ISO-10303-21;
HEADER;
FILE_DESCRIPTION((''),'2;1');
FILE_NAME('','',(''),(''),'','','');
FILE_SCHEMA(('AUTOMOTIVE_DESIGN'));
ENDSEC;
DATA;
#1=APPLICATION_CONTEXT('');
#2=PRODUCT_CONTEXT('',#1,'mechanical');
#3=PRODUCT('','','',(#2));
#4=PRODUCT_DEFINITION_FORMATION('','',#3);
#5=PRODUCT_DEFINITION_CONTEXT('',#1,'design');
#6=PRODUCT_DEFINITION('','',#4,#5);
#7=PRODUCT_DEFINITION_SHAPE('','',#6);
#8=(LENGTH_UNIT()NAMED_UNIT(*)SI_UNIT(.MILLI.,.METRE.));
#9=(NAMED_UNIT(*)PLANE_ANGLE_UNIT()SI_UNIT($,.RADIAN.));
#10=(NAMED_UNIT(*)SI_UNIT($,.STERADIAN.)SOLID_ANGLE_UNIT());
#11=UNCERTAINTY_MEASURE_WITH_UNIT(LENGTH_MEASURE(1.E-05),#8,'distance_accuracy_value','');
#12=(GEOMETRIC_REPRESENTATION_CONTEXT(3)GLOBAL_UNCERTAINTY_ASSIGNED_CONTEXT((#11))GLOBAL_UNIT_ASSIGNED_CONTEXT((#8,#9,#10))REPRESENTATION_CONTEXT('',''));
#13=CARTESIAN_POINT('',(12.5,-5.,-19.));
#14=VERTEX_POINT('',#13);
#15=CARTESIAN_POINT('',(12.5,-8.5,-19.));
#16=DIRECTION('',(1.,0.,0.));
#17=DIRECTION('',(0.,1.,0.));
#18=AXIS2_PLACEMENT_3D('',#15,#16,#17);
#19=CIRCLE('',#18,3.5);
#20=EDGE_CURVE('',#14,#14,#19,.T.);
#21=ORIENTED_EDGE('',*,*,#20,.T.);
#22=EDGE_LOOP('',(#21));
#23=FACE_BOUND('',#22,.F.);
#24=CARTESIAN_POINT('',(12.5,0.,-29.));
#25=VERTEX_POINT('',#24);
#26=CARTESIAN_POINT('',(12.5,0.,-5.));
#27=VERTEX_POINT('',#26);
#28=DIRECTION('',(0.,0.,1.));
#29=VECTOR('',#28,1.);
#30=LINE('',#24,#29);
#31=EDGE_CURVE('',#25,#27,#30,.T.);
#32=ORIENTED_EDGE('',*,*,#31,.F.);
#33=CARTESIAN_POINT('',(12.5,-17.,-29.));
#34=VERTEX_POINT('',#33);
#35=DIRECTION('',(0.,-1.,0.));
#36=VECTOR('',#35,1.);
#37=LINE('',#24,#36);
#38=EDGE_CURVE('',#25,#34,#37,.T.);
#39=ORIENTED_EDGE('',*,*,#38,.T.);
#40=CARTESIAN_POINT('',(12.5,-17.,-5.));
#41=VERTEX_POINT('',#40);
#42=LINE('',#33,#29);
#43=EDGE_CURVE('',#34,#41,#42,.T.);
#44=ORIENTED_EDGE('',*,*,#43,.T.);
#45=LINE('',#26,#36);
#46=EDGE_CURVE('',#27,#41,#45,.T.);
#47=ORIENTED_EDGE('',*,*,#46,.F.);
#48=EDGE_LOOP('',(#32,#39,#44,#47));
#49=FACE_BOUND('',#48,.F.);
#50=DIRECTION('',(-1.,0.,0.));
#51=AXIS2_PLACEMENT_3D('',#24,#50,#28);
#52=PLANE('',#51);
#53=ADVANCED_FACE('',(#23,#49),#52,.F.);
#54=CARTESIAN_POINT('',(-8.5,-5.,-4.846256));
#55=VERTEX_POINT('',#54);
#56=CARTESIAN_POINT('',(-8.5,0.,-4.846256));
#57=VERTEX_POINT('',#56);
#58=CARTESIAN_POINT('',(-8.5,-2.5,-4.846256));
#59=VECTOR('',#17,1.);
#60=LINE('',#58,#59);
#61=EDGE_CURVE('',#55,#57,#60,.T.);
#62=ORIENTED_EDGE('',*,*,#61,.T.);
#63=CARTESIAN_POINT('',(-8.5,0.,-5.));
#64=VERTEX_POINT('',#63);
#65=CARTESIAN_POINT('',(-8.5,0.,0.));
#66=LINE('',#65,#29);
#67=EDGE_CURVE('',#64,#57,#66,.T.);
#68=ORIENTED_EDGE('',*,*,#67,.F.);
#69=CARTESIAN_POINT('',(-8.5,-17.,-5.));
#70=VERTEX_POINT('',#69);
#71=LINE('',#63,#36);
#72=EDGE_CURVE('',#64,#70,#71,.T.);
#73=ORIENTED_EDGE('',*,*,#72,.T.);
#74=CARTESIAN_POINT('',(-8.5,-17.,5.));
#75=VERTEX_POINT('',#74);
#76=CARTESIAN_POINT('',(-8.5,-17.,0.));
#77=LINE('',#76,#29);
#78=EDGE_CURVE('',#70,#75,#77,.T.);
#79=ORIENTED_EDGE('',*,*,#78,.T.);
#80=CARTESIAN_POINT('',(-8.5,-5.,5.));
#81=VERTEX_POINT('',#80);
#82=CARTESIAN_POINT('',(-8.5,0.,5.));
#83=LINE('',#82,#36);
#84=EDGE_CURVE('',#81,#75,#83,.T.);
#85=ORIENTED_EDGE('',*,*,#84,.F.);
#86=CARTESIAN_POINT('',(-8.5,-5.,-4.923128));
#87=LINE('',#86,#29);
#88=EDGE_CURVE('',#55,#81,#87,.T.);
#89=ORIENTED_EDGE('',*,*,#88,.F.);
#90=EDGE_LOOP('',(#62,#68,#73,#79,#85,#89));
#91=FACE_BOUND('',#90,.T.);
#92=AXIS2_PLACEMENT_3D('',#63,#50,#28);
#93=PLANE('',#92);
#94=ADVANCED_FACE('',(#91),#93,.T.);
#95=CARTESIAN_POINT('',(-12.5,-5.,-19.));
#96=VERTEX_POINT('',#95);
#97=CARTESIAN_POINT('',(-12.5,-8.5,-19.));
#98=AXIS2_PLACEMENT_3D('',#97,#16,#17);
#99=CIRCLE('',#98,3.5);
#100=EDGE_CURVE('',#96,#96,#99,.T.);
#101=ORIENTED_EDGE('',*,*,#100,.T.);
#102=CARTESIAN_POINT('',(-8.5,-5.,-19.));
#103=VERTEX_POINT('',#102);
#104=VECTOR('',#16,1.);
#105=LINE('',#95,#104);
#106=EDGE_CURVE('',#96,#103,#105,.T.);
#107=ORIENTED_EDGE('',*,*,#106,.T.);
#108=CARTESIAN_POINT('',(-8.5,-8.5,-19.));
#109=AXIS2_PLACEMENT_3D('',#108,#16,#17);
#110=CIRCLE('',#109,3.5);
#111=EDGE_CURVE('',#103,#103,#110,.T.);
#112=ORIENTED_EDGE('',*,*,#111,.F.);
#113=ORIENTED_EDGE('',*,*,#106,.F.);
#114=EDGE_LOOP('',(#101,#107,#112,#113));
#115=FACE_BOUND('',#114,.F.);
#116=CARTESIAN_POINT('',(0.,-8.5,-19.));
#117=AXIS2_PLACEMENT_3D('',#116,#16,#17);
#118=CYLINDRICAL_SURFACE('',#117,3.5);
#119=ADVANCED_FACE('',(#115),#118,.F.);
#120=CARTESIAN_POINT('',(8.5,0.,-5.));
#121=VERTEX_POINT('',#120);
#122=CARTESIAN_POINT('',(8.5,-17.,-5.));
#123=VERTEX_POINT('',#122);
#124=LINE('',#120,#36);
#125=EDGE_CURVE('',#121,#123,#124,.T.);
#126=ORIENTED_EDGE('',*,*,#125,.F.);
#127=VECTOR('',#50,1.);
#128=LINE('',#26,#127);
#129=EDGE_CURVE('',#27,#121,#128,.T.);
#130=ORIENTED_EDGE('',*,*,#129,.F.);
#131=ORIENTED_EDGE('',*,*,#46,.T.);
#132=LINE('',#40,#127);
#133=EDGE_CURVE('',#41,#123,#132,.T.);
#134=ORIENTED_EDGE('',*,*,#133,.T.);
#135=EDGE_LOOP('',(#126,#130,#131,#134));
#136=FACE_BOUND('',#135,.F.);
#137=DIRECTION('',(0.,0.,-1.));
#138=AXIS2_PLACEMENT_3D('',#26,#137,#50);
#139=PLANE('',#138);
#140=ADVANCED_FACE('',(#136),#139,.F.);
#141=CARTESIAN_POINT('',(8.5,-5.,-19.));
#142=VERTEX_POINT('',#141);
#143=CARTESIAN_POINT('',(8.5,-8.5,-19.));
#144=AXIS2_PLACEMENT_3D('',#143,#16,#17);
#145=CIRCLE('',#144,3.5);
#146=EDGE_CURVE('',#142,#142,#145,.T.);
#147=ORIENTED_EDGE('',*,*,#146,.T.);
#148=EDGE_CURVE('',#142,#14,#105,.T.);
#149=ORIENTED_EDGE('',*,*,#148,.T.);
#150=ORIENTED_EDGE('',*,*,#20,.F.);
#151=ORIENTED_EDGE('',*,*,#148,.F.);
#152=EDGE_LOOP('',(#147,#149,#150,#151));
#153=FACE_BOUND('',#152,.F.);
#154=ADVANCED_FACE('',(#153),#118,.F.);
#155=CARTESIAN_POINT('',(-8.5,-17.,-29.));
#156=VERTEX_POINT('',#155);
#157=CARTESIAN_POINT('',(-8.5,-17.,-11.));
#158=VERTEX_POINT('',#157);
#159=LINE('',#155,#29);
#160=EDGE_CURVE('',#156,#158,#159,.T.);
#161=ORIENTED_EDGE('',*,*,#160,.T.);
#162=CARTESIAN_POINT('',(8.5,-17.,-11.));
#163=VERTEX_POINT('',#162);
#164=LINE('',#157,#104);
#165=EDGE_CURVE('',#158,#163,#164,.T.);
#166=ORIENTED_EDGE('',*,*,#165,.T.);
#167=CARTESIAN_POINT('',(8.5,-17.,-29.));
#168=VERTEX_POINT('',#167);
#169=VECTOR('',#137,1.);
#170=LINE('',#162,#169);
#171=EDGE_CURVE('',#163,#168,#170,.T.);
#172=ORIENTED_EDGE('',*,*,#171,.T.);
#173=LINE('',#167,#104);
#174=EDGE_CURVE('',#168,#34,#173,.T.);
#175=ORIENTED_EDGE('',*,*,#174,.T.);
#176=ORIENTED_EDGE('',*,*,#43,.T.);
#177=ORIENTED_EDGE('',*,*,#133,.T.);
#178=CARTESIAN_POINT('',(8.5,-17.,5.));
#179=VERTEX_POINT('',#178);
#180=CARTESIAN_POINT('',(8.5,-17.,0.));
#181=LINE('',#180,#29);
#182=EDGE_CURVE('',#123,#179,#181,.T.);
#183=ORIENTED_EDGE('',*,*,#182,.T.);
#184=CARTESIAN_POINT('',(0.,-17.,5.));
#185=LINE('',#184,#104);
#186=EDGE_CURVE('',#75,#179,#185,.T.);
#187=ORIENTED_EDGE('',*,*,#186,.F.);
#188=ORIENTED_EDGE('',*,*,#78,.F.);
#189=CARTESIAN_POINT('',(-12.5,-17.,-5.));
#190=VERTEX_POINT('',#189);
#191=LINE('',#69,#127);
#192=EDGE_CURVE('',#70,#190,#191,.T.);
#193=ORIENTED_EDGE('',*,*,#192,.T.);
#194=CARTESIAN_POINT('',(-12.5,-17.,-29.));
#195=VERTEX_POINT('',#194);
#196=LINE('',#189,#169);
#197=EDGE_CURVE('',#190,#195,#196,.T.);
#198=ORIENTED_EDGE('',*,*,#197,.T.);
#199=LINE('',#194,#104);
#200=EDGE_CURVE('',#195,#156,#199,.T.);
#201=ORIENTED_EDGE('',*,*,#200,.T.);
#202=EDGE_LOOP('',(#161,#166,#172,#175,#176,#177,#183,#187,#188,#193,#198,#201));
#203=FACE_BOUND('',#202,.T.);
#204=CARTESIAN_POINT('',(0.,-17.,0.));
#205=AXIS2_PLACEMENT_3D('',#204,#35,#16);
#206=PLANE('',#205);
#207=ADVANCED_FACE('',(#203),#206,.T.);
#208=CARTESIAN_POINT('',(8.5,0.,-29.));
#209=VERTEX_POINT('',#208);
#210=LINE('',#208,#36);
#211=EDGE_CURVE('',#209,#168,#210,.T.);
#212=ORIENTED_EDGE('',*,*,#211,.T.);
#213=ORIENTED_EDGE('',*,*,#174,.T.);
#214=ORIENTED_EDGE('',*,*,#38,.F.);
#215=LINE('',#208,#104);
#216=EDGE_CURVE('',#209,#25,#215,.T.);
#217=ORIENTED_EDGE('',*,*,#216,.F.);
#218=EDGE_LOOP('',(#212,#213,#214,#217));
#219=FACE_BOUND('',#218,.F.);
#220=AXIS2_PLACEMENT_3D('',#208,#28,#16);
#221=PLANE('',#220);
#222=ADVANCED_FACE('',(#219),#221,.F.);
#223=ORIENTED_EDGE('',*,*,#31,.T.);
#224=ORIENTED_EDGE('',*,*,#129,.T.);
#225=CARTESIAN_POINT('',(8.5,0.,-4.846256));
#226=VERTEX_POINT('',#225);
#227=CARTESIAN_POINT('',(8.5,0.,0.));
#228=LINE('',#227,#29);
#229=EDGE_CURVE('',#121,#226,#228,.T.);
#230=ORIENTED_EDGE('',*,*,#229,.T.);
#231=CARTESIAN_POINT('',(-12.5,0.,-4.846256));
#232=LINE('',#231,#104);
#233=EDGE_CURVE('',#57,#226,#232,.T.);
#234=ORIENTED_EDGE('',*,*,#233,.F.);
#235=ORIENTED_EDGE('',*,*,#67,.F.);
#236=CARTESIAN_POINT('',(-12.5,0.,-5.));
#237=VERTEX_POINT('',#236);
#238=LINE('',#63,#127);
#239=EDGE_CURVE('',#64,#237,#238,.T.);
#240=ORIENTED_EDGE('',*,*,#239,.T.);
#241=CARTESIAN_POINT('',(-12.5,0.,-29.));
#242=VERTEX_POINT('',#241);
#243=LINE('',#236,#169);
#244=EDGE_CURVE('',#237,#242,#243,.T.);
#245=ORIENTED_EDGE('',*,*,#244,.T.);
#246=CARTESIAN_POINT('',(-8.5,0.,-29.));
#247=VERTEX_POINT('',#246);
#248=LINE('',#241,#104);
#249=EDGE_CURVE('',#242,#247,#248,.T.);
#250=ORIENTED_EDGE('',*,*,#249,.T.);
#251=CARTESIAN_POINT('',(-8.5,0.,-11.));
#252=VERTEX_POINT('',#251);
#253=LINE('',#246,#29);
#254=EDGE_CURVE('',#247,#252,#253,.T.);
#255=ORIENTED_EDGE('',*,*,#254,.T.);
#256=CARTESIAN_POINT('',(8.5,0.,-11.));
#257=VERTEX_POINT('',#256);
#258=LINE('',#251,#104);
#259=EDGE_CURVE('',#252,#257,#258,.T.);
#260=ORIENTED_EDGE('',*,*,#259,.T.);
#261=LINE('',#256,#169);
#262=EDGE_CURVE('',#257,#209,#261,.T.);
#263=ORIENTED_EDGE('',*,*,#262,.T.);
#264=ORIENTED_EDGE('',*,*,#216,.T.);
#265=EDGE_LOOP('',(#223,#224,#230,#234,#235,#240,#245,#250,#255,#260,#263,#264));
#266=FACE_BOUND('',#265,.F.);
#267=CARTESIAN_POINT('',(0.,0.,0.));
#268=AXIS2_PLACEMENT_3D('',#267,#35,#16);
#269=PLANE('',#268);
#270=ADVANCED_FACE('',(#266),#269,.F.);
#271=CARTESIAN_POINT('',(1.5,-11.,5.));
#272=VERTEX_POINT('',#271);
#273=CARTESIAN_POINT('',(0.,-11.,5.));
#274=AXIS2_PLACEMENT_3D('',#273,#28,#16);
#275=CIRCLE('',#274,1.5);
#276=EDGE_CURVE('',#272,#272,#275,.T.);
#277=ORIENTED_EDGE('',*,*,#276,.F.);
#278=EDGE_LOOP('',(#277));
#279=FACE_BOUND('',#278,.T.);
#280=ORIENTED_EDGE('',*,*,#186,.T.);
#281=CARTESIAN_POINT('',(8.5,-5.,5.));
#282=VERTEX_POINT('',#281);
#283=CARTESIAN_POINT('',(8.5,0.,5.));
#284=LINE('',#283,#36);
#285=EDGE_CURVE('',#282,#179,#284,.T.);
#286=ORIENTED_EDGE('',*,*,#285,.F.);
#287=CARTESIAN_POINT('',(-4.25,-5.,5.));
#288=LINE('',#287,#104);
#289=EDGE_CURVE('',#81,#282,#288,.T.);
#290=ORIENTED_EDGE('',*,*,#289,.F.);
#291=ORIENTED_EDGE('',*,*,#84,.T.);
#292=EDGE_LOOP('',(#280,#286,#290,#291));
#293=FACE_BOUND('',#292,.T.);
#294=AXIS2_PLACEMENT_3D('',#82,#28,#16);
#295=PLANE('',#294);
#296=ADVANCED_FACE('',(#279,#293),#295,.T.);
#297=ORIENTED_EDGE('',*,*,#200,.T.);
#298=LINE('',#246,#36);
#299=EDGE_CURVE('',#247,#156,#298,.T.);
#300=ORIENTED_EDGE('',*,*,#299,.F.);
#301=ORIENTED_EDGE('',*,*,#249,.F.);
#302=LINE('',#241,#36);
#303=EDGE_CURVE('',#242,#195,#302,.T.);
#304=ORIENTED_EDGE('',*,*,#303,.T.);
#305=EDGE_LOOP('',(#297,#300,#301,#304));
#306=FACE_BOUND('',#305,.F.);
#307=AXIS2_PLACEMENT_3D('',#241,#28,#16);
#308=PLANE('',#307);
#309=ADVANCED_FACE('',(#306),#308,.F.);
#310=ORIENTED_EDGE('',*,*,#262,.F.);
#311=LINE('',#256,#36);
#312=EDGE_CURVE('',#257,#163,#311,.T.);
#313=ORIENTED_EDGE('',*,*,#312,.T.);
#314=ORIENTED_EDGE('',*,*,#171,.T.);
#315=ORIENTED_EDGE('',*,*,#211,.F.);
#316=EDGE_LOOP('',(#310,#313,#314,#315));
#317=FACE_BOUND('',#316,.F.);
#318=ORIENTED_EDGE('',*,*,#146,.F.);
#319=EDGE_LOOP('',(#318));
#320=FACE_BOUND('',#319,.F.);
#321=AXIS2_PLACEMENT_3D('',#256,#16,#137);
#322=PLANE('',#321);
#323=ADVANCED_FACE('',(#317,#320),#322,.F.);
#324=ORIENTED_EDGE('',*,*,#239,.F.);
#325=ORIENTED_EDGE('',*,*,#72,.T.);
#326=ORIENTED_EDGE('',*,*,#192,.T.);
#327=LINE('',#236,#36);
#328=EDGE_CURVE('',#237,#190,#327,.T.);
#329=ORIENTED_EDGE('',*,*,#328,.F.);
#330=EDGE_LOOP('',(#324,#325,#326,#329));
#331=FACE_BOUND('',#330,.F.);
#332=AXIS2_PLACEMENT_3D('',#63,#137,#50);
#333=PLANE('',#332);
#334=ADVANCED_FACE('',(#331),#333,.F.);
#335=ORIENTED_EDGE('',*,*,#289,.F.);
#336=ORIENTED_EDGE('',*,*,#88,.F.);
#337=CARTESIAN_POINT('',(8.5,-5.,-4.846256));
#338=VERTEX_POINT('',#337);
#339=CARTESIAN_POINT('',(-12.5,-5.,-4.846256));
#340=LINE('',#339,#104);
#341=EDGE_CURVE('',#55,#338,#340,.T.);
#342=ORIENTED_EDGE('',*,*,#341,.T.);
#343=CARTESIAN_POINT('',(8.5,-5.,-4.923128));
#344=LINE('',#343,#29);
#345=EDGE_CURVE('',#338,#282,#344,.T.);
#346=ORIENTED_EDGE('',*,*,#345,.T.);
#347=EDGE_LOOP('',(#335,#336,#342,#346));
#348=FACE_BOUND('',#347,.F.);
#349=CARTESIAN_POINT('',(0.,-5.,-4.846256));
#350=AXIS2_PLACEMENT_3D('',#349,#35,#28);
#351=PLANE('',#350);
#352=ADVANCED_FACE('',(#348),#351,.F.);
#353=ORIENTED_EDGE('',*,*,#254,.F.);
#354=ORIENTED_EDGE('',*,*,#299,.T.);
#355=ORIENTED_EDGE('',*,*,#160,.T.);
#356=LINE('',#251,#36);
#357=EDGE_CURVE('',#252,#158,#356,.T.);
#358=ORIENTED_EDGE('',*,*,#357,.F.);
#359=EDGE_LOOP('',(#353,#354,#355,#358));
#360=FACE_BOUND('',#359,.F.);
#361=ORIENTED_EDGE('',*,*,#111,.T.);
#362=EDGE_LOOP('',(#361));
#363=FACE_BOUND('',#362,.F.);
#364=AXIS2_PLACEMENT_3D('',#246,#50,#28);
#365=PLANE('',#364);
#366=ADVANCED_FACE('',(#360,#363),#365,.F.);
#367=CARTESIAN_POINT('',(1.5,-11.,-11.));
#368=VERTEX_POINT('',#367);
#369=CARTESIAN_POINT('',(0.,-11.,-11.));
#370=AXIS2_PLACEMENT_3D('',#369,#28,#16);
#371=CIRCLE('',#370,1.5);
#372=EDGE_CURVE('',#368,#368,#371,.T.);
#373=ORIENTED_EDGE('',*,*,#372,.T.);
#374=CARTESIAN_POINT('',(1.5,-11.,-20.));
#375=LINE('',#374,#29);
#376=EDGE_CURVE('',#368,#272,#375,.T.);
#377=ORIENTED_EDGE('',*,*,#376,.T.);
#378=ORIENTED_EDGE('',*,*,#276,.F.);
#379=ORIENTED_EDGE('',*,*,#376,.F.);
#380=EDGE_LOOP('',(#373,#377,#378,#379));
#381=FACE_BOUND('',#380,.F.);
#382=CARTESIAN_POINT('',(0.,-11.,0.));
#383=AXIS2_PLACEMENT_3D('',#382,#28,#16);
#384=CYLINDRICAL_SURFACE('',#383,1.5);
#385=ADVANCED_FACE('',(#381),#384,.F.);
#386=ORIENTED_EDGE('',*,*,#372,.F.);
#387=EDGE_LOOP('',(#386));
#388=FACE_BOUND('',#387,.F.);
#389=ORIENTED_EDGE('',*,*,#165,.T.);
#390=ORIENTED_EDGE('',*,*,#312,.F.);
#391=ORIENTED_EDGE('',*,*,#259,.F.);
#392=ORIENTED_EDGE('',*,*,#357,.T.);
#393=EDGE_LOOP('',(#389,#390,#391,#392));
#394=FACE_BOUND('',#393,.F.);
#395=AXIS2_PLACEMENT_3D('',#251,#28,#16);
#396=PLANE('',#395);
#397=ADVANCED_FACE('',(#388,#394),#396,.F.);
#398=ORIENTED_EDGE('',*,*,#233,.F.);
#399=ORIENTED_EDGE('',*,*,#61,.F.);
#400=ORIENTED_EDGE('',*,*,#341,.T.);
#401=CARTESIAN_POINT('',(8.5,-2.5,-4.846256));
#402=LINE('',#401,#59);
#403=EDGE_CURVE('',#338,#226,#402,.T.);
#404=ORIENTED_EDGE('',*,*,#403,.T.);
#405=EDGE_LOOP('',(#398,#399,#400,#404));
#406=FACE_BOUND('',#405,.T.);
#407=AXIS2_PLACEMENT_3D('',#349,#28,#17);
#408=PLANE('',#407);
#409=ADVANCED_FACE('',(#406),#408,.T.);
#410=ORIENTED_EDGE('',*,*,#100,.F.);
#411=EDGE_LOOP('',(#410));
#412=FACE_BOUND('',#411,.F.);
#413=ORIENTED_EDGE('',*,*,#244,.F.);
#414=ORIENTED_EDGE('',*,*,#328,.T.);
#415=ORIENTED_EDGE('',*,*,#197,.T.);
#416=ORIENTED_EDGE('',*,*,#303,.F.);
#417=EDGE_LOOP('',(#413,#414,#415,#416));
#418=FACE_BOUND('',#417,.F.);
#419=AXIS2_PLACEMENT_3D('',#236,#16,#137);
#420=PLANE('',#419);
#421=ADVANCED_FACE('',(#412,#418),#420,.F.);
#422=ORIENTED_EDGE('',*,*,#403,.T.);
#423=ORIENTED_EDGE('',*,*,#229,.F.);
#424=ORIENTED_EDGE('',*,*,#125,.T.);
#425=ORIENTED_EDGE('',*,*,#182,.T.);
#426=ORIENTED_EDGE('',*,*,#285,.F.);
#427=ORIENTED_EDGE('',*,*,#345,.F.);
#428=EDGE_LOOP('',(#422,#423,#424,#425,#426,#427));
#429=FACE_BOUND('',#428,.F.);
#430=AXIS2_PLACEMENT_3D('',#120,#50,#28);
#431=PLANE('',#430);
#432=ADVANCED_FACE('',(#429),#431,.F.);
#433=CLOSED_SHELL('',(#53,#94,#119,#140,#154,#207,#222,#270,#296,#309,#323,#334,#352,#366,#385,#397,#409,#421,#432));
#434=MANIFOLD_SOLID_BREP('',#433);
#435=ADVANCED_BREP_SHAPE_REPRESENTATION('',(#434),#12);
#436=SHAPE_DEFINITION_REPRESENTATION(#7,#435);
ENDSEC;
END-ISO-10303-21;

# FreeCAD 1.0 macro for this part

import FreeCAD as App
import Part
import Sketcher
from FreeCAD import Vector

doc = App.newDocument("Part")
body = doc.addObject("PartDesign::Body", "Body")

# Sketch on XZ plane
sketch1 = body.newObject("Sketcher::SketchObject", "Sketch")
sketch1.AttachmentSupport = (doc.getObject("XZ_Plane"), [""])
sketch1.MapMode = "FlatFace"
sketch1.addGeometry([
    Part.LineSegment(Vector(-8.5, 5, 0), Vector(-8.5, -5, 0)),  # 0
    Part.LineSegment(Vector(-8.5, -5, 0), Vector(-12.5, -5, 0)),  # 1
    Part.LineSegment(Vector(-12.5, -5, 0), Vector(-12.5, -29, 0)),  # 2
    Part.LineSegment(Vector(-12.5, -29, 0), Vector(-8.5, -29, 0)),  # 3
    Part.LineSegment(Vector(-8.5, -29, 0), Vector(-8.5, -11, 0)),  # 4
    Part.LineSegment(Vector(-8.5, -11, 0), Vector(8.5, -11, 0)),  # 5
    Part.LineSegment(Vector(8.5, -11, 0), Vector(8.5, -29, 0)),  # 6
    Part.LineSegment(Vector(8.5, -29, 0), Vector(12.5, -29, 0)),  # 7
    Part.LineSegment(Vector(12.5, -29, 0), Vector(12.5, -5, 0)),  # 8
    Part.LineSegment(Vector(12.5, -5, 0), Vector(8.5, -5, 0)),  # 9
    Part.LineSegment(Vector(8.5, -5, 0), Vector(8.5, 5, 0)),  # 10
    Part.LineSegment(Vector(8.5, 5, 0), Vector(-8.5, 5, 0)),  # 11
], False)
sketch1.addConstraint([
    Sketcher.Constraint("Coincident", 0, 2, 1, 1),
    Sketcher.Constraint("Coincident", 1, 2, 2, 1),
    Sketcher.Constraint("Coincident", 2, 2, 3, 1),
    Sketcher.Constraint("Coincident", 3, 2, 4, 1),
    Sketcher.Constraint("Coincident", 4, 2, 5, 1),
    Sketcher.Constraint("Coincident", 5, 2, 6, 1),
    Sketcher.Constraint("Coincident", 6, 2, 7, 1),
    Sketcher.Constraint("Coincident", 7, 2, 8, 1),
    Sketcher.Constraint("Coincident", 8, 2, 9, 1),
    Sketcher.Constraint("Coincident", 9, 2, 10, 1),
    Sketcher.Constraint("Coincident", 10, 2, 11, 1),
    Sketcher.Constraint("Coincident", 11, 2, 0, 1),
    Sketcher.Constraint("Vertical", 0),
    Sketcher.Constraint("Horizontal", 1),
    Sketcher.Constraint("Vertical", 2),
    Sketcher.Constraint("Horizontal", 3),
    Sketcher.Constraint("Vertical", 4),
    Sketcher.Constraint("Horizontal", 5),
    Sketcher.Constraint("Vertical", 6),
    Sketcher.Constraint("Horizontal", 7),
    Sketcher.Constraint("Vertical", 8),
    Sketcher.Constraint("Horizontal", 9),
    Sketcher.Constraint("Vertical", 10),
    Sketcher.Constraint("Horizontal", 11),
    Sketcher.Constraint("Symmetric", 0, 2, 10, 2, -1, 1),
    Sketcher.Constraint("Symmetric", 3, 2, 6, 2, -2),
    Sketcher.Constraint("Symmetric", 1, 2, 8, 2, -2),
    Sketcher.Constraint("Vertical", 0, 2, 3, 2),
    Sketcher.Constraint("DistanceX", 1, 2, 1, 1, 4.0),
    Sketcher.Constraint("DistanceX", 5, 1, 5, 2, 17.0),
    Sketcher.Constraint("DistanceY", 0, 2, 0, 1, 10.0),
    Sketcher.Constraint("DistanceY", 2, 2, 2, 1, 24.0),
    Sketcher.Constraint("DistanceY", 4, 1, 4, 2, 18.0),
])
pad1 = body.newObject("PartDesign::Pad", "Pad")
pad1.Profile = sketch1
pad1.Length = 17

# Sketch on YZ plane
sketch2 = body.newObject("Sketcher::SketchObject", "Sketch001")
sketch2.AttachmentSupport = (doc.getObject("YZ_Plane"), [""])
sketch2.MapMode = "FlatFace"
sketch2.addGeometry([
    Part.LineSegment(Vector(-5, 5.2, 0), Vector(-5, -4.8, 0)),  # 0
    Part.LineSegment(Vector(-5, -4.8, 0), Vector(0, -4.8, 0)),  # 1
    Part.LineSegment(Vector(0, -4.8, 0), Vector(0, 5.2, 0)),  # 2
    Part.LineSegment(Vector(0, 5.2, 0), Vector(-5, 5.2, 0)),  # 3
    Part.Circle(Vector(-8.5, -19, 0), Vector(0, 0, 1), 3.5),  # 4
], False)
sketch2.addConstraint([
    Sketcher.Constraint("Coincident", 0, 2, 1, 1),
    Sketcher.Constraint("Coincident", 1, 2, 2, 1),
    Sketcher.Constraint("Coincident", 2, 2, 3, 1),
    Sketcher.Constraint("Coincident", 3, 2, 0, 1),
    Sketcher.Constraint("Vertical", 0),
    Sketcher.Constraint("Horizontal", 1),
    Sketcher.Constraint("Vertical", 2),
    Sketcher.Constraint("Horizontal", 3),
    Sketcher.Constraint("PointOnObject", 1, 2, -2),
    Sketcher.Constraint("Diameter", 4, 7.0),
    Sketcher.Constraint("DistanceX", 1, 1, 1, 2, 5.0),
    Sketcher.Constraint("DistanceY", 0, 2, 0, 1, 10.0),
    Sketcher.Constraint("DistanceY", 4, 3, -1, 1, 19.0),
    Sketcher.Constraint("DistanceX", 4, 3, -1, 1, 8.5),
    Sketcher.Constraint("DistanceY", 0, 2, -1, 1, 4.846256),
])
pocket1 = body.newObject("PartDesign::Pocket", "Pocket")
pocket1.Profile = sketch2
pocket1.Length = 25
pocket1.Midplane = True

# Sketch on XY plane
sketch3 = body.newObject("Sketcher::SketchObject", "Sketch002")
sketch3.AttachmentSupport = (doc.getObject("XY_Plane"), [""])
sketch3.MapMode = "FlatFace"
sketch3.addGeometry(Part.Circle(Vector(0, -11, 0), Vector(0, 0, 1), 1.5), False)
sketch3.addConstraint([
    Sketcher.Constraint("PointOnObject", 0, 3, -2),
    Sketcher.Constraint("Diameter", 0, 3.0),
    Sketcher.Constraint("DistanceY", 0, 3, -1, 1, 11.0),
])
pocket2 = body.newObject("PartDesign::Pocket", "Pocket001")
pocket2.Profile = sketch3
pocket2.Length = 40
pocket2.Midplane = True

doc.recompute()
